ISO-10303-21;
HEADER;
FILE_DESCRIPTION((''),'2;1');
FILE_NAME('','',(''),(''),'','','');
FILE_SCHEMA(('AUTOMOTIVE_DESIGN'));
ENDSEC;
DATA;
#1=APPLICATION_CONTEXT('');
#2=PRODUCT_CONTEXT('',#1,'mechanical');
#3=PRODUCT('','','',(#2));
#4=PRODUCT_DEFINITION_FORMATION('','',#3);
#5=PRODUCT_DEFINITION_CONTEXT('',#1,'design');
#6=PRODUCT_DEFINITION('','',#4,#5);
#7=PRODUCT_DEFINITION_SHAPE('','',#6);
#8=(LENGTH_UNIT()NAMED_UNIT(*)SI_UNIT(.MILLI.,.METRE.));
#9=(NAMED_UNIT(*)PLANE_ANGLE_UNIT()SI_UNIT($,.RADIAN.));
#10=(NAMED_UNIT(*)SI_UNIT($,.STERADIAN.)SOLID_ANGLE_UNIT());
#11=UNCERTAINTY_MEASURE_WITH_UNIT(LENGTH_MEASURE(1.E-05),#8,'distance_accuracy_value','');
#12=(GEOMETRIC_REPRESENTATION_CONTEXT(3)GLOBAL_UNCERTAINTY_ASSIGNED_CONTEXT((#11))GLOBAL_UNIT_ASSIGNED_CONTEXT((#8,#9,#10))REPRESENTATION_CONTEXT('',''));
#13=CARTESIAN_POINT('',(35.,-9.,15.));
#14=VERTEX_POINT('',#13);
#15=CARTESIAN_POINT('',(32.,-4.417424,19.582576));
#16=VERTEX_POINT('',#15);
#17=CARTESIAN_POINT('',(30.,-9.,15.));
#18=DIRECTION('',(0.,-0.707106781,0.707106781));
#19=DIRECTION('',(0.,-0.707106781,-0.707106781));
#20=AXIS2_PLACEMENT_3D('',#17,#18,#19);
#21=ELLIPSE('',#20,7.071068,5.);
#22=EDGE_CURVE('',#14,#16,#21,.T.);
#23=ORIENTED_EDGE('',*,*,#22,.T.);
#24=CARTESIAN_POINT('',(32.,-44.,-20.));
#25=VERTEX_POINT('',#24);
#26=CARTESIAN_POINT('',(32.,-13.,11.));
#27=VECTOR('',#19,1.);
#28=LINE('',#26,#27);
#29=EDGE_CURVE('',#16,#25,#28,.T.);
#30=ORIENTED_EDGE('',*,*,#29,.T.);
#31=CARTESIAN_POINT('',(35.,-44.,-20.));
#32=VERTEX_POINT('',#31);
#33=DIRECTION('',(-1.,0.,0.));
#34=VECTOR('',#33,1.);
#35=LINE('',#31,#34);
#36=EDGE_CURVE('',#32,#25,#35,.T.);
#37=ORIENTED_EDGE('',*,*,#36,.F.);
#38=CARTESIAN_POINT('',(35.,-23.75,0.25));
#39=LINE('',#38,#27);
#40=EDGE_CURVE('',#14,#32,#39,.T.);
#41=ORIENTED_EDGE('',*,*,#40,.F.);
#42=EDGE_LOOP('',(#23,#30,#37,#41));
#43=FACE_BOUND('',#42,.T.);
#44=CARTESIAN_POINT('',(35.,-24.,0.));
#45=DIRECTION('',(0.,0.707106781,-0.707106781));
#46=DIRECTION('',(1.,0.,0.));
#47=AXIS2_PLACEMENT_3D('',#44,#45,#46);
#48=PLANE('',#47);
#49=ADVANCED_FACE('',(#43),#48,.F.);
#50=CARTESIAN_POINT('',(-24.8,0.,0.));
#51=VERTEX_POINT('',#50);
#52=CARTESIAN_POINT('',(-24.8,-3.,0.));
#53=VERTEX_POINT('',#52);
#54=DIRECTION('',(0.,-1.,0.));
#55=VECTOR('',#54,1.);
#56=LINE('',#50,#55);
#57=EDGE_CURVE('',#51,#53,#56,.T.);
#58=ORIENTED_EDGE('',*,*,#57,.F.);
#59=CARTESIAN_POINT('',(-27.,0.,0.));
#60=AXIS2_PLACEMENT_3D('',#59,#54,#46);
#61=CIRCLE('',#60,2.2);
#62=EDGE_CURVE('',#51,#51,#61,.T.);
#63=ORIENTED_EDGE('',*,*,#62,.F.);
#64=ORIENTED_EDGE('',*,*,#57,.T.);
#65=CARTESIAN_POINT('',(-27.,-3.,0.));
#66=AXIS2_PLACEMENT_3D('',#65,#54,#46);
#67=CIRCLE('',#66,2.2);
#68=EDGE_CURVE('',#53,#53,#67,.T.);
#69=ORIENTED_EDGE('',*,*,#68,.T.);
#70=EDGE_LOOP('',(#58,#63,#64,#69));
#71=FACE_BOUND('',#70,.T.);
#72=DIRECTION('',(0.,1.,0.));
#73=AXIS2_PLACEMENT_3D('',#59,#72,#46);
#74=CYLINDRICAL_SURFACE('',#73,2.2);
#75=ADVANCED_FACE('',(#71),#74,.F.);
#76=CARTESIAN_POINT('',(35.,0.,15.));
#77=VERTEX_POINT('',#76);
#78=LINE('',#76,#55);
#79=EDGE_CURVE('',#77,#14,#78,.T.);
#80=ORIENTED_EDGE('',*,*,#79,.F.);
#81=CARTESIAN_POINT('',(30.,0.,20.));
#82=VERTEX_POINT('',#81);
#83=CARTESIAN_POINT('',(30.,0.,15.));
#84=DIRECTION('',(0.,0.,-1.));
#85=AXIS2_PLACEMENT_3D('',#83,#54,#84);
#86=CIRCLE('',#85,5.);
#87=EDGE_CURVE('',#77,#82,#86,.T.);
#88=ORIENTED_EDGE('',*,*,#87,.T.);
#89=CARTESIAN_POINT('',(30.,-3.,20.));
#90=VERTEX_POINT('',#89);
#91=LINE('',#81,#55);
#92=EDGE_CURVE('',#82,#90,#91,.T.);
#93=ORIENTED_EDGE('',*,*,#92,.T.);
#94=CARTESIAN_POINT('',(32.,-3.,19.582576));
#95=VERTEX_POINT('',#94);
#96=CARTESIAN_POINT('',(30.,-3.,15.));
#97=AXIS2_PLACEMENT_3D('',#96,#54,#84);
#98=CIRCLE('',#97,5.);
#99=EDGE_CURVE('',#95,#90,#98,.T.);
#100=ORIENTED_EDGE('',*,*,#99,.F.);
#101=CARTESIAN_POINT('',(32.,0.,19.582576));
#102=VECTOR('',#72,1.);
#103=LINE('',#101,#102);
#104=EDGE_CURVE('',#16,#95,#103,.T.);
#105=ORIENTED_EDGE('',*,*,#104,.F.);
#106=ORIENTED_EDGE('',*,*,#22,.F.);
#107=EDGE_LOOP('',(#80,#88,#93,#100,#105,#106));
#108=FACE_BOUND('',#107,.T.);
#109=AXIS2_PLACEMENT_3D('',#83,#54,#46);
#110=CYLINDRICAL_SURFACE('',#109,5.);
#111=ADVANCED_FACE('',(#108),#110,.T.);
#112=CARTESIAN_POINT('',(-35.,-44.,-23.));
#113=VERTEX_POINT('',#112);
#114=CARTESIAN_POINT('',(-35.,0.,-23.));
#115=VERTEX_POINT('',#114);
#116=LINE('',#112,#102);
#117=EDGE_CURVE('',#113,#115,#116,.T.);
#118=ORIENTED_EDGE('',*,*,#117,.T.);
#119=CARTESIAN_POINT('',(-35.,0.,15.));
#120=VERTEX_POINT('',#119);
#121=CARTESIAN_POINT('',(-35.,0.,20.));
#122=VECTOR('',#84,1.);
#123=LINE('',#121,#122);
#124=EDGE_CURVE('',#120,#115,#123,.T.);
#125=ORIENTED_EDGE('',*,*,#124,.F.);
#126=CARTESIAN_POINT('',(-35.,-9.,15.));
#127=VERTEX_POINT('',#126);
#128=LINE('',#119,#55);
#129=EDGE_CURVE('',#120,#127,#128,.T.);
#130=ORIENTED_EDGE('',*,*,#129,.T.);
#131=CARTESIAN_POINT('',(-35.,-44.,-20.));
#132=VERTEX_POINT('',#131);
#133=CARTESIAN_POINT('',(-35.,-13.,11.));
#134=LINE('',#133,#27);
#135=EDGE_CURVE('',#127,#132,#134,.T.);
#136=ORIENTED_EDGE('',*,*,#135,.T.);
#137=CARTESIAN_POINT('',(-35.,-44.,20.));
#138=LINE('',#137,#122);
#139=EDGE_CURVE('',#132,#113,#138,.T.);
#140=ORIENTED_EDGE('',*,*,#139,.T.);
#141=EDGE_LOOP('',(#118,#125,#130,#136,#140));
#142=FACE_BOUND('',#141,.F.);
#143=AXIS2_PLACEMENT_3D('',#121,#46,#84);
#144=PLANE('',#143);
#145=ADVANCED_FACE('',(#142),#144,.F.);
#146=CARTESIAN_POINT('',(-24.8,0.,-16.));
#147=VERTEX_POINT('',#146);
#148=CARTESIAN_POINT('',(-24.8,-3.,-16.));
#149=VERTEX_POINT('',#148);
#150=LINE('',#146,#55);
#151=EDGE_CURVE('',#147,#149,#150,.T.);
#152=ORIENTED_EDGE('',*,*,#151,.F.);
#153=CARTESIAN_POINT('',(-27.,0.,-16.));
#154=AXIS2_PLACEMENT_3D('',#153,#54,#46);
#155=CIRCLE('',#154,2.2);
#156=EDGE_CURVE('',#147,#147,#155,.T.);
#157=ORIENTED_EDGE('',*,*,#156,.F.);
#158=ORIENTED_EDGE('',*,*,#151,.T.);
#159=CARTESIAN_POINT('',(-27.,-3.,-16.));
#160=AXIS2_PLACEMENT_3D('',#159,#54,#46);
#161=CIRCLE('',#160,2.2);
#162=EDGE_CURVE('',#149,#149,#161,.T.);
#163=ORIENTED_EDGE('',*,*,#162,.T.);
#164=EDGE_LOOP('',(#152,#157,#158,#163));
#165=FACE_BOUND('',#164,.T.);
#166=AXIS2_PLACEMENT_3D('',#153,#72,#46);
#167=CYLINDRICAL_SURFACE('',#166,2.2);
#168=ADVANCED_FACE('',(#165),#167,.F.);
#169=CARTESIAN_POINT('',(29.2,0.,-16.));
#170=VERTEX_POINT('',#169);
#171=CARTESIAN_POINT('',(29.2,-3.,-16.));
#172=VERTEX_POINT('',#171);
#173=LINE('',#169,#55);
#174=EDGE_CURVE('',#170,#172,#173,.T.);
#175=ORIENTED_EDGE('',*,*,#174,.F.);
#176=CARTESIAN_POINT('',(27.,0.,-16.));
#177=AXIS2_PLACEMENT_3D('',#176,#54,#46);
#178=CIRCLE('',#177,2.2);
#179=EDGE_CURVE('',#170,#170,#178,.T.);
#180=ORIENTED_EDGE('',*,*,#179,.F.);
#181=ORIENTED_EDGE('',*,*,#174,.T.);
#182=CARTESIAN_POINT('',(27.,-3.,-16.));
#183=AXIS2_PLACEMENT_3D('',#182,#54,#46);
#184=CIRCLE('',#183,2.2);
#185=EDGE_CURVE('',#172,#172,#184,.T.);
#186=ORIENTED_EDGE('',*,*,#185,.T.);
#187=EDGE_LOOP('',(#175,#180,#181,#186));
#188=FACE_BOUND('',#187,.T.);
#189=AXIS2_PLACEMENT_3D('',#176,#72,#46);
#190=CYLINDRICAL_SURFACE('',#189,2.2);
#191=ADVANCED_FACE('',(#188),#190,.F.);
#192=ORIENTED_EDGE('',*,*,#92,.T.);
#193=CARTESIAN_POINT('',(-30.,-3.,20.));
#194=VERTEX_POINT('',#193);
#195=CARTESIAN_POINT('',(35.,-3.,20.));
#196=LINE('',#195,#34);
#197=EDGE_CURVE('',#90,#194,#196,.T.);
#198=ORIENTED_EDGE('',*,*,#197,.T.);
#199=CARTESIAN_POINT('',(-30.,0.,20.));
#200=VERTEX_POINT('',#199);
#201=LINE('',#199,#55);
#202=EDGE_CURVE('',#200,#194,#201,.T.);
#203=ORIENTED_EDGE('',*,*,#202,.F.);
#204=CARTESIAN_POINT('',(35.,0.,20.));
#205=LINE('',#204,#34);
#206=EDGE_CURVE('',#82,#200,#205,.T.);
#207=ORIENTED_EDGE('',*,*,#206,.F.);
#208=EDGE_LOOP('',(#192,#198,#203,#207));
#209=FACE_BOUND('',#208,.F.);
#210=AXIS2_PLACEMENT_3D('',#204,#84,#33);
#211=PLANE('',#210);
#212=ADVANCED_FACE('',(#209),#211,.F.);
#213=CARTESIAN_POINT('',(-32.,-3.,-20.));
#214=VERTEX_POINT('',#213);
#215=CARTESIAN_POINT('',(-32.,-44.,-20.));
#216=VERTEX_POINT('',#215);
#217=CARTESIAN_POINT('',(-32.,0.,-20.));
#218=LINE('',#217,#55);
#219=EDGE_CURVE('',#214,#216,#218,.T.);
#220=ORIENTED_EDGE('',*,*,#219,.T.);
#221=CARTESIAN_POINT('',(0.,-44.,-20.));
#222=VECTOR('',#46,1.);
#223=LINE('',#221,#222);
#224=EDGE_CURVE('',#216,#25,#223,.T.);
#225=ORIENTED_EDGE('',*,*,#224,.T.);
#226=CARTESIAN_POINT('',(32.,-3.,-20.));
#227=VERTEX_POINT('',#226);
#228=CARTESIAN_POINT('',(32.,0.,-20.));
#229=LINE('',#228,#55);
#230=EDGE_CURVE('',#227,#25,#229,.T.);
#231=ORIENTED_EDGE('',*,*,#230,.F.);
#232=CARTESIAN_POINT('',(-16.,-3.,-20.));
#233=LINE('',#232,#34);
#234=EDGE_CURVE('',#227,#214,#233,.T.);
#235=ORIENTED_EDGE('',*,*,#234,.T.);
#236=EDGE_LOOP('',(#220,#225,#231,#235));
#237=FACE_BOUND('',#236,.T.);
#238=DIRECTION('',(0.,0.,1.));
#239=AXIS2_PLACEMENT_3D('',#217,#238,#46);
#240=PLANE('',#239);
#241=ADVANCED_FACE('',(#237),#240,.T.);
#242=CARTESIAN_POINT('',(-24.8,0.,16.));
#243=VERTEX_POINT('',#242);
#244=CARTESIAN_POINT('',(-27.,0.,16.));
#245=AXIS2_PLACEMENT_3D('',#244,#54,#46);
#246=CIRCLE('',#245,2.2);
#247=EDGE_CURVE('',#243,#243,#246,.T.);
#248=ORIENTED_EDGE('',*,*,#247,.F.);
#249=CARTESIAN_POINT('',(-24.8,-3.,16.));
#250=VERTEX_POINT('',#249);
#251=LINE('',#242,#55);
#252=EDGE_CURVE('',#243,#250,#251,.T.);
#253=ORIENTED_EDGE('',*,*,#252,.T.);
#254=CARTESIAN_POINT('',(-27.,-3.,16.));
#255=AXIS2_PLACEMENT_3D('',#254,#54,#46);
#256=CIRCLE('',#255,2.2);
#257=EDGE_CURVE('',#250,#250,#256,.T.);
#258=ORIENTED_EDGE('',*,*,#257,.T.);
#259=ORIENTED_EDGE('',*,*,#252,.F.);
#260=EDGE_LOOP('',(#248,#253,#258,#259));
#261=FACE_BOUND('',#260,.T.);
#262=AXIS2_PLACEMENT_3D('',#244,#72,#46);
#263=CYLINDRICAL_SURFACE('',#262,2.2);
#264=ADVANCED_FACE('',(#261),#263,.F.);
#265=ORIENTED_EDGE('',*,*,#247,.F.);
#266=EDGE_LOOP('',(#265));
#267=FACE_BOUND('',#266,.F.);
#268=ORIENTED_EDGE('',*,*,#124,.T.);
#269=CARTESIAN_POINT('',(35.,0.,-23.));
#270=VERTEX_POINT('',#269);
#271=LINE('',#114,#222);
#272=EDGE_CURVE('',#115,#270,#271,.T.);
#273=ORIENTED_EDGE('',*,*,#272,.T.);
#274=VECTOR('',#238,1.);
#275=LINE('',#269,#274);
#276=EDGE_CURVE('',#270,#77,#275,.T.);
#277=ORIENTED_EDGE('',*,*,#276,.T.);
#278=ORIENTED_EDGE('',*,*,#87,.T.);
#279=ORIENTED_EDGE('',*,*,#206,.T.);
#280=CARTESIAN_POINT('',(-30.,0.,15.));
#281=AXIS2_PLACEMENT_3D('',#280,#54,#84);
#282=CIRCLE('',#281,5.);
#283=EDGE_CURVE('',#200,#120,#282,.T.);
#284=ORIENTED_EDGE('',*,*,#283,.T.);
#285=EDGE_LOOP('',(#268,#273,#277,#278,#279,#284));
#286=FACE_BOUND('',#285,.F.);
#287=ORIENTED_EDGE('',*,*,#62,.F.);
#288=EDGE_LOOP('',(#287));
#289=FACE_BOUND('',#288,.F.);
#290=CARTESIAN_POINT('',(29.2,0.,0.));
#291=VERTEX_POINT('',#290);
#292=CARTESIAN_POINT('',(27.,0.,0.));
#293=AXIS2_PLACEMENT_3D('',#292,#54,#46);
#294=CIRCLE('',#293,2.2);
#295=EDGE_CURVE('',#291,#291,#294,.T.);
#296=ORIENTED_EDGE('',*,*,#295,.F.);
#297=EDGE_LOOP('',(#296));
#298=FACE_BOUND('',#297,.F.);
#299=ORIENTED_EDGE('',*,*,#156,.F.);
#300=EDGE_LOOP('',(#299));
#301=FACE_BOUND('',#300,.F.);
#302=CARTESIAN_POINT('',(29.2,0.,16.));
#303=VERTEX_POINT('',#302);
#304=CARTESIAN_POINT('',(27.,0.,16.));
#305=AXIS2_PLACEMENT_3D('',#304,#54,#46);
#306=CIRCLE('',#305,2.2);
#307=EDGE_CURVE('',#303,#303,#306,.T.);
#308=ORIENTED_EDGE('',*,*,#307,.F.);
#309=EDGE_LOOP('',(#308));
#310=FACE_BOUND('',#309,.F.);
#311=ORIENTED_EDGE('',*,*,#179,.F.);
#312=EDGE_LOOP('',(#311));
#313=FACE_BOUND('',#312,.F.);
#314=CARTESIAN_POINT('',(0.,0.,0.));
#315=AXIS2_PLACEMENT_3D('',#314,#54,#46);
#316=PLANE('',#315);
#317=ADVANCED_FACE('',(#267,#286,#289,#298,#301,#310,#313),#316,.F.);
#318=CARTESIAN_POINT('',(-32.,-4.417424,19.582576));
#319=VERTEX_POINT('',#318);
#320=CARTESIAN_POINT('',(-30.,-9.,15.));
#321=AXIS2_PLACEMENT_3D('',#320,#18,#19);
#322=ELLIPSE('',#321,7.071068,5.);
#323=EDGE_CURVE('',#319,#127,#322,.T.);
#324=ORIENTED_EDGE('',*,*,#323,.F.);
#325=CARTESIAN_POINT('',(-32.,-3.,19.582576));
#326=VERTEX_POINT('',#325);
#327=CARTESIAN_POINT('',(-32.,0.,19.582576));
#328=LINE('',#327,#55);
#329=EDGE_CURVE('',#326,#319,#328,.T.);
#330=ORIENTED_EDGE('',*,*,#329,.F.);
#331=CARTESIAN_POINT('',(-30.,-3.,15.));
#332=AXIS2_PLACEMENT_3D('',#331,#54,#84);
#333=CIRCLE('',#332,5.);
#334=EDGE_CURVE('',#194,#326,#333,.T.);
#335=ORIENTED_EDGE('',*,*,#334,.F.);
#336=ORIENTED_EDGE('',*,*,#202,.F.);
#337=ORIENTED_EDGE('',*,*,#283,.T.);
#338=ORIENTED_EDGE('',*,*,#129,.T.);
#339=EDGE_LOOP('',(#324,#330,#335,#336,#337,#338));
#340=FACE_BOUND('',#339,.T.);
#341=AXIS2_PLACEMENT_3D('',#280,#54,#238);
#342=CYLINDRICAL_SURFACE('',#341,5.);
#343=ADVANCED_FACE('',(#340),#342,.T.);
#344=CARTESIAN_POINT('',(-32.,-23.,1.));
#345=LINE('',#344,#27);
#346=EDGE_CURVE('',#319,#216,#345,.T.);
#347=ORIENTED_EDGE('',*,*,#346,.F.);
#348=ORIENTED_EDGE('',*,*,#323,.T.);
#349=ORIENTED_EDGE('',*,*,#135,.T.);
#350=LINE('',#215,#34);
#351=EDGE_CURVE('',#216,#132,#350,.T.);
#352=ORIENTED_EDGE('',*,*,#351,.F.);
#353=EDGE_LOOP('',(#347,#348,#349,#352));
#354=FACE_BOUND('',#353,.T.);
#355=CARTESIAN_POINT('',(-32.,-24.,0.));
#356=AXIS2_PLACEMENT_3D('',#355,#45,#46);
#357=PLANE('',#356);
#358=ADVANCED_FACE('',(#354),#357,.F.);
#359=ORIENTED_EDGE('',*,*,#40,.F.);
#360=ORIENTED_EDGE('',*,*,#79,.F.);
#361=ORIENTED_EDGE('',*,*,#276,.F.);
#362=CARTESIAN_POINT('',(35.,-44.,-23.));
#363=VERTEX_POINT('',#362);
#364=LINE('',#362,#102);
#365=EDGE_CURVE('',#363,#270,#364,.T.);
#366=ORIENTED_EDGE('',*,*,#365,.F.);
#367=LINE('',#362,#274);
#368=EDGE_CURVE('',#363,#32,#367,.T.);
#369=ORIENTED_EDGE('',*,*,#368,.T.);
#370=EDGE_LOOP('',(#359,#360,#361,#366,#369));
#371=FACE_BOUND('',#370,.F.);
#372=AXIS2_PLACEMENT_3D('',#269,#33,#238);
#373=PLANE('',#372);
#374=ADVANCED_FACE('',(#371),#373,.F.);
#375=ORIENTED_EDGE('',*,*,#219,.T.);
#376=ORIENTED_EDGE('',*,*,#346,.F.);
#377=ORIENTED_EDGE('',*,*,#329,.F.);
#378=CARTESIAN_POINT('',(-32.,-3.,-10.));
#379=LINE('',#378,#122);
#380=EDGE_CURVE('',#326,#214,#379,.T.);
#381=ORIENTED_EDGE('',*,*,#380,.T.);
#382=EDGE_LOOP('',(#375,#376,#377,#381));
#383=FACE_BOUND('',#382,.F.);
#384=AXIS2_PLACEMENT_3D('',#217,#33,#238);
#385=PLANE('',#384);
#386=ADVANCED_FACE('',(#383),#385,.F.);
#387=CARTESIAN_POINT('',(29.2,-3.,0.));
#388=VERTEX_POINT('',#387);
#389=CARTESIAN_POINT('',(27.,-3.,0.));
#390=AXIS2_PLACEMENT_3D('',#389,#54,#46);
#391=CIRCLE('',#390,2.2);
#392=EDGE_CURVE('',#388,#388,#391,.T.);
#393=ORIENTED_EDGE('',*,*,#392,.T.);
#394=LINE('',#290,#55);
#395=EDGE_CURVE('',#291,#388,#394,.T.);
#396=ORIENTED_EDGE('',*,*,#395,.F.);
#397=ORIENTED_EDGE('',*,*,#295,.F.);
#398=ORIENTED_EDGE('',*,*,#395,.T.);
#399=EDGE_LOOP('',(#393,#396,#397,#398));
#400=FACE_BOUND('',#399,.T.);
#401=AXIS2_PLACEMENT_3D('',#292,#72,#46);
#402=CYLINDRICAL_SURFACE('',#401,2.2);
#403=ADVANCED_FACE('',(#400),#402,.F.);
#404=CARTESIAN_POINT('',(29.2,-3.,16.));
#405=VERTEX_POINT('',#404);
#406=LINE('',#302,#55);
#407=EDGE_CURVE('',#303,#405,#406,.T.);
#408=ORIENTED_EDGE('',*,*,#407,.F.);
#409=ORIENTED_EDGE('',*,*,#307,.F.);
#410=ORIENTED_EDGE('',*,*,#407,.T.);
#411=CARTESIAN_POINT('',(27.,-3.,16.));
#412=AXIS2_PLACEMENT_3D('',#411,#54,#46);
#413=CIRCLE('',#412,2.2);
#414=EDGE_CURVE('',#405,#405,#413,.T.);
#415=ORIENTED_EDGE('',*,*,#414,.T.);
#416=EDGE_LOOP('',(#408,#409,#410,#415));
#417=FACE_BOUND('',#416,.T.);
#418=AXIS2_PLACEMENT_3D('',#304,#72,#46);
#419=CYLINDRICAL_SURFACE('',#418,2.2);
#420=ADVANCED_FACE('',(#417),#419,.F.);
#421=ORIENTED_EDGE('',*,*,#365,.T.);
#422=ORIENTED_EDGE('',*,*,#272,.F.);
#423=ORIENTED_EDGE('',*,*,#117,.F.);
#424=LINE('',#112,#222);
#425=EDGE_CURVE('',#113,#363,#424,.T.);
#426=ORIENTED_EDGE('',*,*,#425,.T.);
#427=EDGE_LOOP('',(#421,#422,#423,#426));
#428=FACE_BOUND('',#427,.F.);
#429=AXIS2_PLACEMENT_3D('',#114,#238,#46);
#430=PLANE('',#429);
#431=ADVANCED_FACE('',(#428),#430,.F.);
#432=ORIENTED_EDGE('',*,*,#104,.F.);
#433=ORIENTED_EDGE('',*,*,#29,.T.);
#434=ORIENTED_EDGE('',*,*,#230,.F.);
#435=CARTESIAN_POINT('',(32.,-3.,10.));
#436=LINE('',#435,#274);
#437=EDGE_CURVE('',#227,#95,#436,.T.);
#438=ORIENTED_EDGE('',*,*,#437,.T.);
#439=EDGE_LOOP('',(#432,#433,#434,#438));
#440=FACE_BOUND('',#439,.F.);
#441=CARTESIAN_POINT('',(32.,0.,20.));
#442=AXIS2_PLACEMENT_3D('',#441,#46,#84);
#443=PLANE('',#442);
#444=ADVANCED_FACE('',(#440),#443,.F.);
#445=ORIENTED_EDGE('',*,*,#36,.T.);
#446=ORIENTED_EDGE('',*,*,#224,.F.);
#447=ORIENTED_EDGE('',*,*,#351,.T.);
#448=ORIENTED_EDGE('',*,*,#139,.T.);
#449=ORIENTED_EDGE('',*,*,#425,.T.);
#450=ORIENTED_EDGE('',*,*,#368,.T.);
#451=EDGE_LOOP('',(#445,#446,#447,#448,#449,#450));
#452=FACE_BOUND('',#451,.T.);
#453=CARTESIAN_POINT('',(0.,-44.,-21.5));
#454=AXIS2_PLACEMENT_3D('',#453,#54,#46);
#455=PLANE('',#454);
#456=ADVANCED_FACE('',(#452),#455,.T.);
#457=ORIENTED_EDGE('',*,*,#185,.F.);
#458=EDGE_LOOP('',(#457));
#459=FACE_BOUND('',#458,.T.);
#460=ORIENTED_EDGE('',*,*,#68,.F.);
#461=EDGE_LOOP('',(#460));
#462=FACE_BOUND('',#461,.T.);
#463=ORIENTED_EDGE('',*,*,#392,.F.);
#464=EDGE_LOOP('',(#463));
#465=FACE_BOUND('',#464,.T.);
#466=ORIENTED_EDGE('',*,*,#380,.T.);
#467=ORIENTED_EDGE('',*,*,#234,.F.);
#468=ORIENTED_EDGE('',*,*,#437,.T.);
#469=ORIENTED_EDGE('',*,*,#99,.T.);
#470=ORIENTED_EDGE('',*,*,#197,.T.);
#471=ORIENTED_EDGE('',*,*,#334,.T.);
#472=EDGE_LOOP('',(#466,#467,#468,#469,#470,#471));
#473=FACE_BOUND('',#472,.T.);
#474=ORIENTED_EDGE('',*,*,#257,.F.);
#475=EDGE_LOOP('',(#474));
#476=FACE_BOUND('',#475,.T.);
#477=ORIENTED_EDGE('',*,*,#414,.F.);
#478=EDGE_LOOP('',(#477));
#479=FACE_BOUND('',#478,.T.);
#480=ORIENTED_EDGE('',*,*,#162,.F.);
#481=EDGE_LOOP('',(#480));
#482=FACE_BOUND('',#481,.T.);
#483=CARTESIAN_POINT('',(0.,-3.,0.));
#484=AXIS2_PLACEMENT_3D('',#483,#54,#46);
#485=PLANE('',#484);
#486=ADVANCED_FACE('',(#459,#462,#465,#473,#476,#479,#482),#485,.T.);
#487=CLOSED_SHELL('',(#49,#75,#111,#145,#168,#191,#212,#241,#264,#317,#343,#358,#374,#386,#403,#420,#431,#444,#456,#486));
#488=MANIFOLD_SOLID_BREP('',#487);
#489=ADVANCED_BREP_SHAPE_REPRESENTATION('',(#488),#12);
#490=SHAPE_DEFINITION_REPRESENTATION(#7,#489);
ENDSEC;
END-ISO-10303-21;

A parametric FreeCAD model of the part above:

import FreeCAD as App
import Part
import Sketcher

V = App.Vector


def edges_at(feature, points):
    """Names of the edges that pass closest to the given points."""
    edges = feature.Shape.Edges
    near = lambda p: min(range(len(edges)), key=lambda i: edges[i].distToShape(Part.Vertex(*p))[0])
    return sorted({f"Edge{near(p) + 1}" for p in points})


def add_polygon(sketch, points):
    """Adds a closed chain of lines whose ends are joined by coincident constraints."""
    first, n = sketch.GeometryCount, len(points)
    for a, b in zip(points, points[1:] + points[:1]):
        sketch.addGeometry(Part.LineSegment(App.Vector(*a, 0), App.Vector(*b, 0)), False)
    for i in range(n):
        sketch.addConstraint(Sketcher.Constraint("Coincident", first + i, 2, first + (i + 1) % n, 1))

doc = App.newDocument("Part")
body = doc.addObject("PartDesign::Body", "Body")

# Sketch on XZ plane
sketch1 = body.newObject("Sketcher::SketchObject", "Sketch")
sketch1.AttachmentSupport = (doc.getObject("XZ_Plane"), [""])
sketch1.MapMode = "FlatFace"
add_polygon(sketch1, [(35, -23), (35, 20), (-35, 20), (-35, -23)])  # lines 0-3
sketch1.addGeometry(Part.Circle(V(-27, -16, 0), V(0, 0, 1), 2.2), False)  # 4
sketch1.addGeometry(Part.Circle(V(-27, 0, 0), V(0, 0, 1), 2.2), False)  # 5
sketch1.addGeometry(Part.Circle(V(27, -16, 0), V(0, 0, 1), 2.2), False)  # 6
sketch1.addGeometry(Part.Circle(V(27, 0, 0), V(0, 0, 1), 2.2), False)  # 7
sketch1.addGeometry(Part.Circle(V(-27, 16, 0), V(0, 0, 1), 2.2), False)  # 8
sketch1.addGeometry(Part.Circle(V(27, 16, 0), V(0, 0, 1), 2.2), False)  # 9
sketch1.addConstraint([
    Sketcher.Constraint("Vertical", 0),
    Sketcher.Constraint("Horizontal", 1),
    Sketcher.Constraint("Vertical", 2),
    Sketcher.Constraint("Horizontal", 3),
    Sketcher.Constraint("Equal", 4, 5),
    Sketcher.Constraint("Equal", 5, 6),
    Sketcher.Constraint("Equal", 6, 7),
    Sketcher.Constraint("Equal", 7, 8),
    Sketcher.Constraint("Equal", 8, 9),
    Sketcher.Constraint("Symmetric", 5, 3, 7, 3, -1, 1),
    Sketcher.Constraint("Symmetric", 6, 3, 8, 3, -1, 1),
    Sketcher.Constraint("Symmetric", 4, 3, 9, 3, -1, 1),
    Sketcher.Constraint("Symmetric", 4, 3, 6, 3, -2),
    Sketcher.Constraint("PointOnObject", 5, 3, -1),
    Sketcher.Constraint("Vertical", 4, 3, 5, 3),
    Sketcher.Constraint("Diameter", 4, 4.4),
    Sketcher.Constraint("DistanceX", 1, 2, 1, 1, 70.0),
    Sketcher.Constraint("DistanceY", 0, 1, 0, 2, 43.0),
    Sketcher.Constraint("DistanceX", 4, 3, -1, 1, 27.0),
    Sketcher.Constraint("DistanceY", 4, 3, -1, 1, 16.0),
    Sketcher.Constraint("DistanceX", -1, 1, 0, 2, 35.0),
    Sketcher.Constraint("DistanceY", -1, 1, 0, 2, 20.0),
])
pad1 = body.newObject("PartDesign::Pad", "Pad")
pad1.Profile = sketch1
pad1.Length = 3

# Sketch on XZ plane
sketch2 = body.newObject("Sketcher::SketchObject", "Sketch001")
sketch2.AttachmentSupport = (doc.getObject("XZ_Plane"), [""])
sketch2.MapMode = "FlatFace"
add_polygon(sketch2, [(35, -23), (35, 20), (32, 20), (32, -20), (-32, -20), (-32, 20), (-35, 20), (-35, -23)])  # lines 0-7
sketch2.addConstraint([
    Sketcher.Constraint("Vertical", 0),
    Sketcher.Constraint("Horizontal", 1),
    Sketcher.Constraint("Vertical", 2),
    Sketcher.Constraint("Horizontal", 3),
    Sketcher.Constraint("Vertical", 4),
    Sketcher.Constraint("Horizontal", 5),
    Sketcher.Constraint("Vertical", 6),
    Sketcher.Constraint("Horizontal", 7),
    Sketcher.Constraint("Symmetric", 1, 2, 3, 2, -1, 1),
    Sketcher.Constraint("Symmetric", 0, 2, 5, 2, -2),
    Sketcher.Constraint("DistanceX", 1, 2, 1, 1, 3.0),
    Sketcher.Constraint("DistanceX", 3, 2, 3, 1, 64.0),
    Sketcher.Constraint("DistanceY", 0, 1, 0, 2, 43.0),
    Sketcher.Constraint("DistanceY", 2, 2, 2, 1, 40.0),
])
pad2 = body.newObject("PartDesign::Pad", "Pad001")
pad2.Profile = sketch2
pad2.Length = 44
doc.recompute()

chamfer = body.newObject("PartDesign::Chamfer", "Chamfer")
chamfer.Base = (pad2, edges_at(pad2, [(-33.5, -44, 20), (33.5, -44, 20)]))
chamfer.Size = 40
doc.recompute()

fillet = body.newObject("PartDesign::Fillet", "Fillet")
fillet.Base = (chamfer, edges_at(chamfer, [(35, -2, 20), (-35, -2, 20)]))
fillet.Radius = 5

doc.recompute()
